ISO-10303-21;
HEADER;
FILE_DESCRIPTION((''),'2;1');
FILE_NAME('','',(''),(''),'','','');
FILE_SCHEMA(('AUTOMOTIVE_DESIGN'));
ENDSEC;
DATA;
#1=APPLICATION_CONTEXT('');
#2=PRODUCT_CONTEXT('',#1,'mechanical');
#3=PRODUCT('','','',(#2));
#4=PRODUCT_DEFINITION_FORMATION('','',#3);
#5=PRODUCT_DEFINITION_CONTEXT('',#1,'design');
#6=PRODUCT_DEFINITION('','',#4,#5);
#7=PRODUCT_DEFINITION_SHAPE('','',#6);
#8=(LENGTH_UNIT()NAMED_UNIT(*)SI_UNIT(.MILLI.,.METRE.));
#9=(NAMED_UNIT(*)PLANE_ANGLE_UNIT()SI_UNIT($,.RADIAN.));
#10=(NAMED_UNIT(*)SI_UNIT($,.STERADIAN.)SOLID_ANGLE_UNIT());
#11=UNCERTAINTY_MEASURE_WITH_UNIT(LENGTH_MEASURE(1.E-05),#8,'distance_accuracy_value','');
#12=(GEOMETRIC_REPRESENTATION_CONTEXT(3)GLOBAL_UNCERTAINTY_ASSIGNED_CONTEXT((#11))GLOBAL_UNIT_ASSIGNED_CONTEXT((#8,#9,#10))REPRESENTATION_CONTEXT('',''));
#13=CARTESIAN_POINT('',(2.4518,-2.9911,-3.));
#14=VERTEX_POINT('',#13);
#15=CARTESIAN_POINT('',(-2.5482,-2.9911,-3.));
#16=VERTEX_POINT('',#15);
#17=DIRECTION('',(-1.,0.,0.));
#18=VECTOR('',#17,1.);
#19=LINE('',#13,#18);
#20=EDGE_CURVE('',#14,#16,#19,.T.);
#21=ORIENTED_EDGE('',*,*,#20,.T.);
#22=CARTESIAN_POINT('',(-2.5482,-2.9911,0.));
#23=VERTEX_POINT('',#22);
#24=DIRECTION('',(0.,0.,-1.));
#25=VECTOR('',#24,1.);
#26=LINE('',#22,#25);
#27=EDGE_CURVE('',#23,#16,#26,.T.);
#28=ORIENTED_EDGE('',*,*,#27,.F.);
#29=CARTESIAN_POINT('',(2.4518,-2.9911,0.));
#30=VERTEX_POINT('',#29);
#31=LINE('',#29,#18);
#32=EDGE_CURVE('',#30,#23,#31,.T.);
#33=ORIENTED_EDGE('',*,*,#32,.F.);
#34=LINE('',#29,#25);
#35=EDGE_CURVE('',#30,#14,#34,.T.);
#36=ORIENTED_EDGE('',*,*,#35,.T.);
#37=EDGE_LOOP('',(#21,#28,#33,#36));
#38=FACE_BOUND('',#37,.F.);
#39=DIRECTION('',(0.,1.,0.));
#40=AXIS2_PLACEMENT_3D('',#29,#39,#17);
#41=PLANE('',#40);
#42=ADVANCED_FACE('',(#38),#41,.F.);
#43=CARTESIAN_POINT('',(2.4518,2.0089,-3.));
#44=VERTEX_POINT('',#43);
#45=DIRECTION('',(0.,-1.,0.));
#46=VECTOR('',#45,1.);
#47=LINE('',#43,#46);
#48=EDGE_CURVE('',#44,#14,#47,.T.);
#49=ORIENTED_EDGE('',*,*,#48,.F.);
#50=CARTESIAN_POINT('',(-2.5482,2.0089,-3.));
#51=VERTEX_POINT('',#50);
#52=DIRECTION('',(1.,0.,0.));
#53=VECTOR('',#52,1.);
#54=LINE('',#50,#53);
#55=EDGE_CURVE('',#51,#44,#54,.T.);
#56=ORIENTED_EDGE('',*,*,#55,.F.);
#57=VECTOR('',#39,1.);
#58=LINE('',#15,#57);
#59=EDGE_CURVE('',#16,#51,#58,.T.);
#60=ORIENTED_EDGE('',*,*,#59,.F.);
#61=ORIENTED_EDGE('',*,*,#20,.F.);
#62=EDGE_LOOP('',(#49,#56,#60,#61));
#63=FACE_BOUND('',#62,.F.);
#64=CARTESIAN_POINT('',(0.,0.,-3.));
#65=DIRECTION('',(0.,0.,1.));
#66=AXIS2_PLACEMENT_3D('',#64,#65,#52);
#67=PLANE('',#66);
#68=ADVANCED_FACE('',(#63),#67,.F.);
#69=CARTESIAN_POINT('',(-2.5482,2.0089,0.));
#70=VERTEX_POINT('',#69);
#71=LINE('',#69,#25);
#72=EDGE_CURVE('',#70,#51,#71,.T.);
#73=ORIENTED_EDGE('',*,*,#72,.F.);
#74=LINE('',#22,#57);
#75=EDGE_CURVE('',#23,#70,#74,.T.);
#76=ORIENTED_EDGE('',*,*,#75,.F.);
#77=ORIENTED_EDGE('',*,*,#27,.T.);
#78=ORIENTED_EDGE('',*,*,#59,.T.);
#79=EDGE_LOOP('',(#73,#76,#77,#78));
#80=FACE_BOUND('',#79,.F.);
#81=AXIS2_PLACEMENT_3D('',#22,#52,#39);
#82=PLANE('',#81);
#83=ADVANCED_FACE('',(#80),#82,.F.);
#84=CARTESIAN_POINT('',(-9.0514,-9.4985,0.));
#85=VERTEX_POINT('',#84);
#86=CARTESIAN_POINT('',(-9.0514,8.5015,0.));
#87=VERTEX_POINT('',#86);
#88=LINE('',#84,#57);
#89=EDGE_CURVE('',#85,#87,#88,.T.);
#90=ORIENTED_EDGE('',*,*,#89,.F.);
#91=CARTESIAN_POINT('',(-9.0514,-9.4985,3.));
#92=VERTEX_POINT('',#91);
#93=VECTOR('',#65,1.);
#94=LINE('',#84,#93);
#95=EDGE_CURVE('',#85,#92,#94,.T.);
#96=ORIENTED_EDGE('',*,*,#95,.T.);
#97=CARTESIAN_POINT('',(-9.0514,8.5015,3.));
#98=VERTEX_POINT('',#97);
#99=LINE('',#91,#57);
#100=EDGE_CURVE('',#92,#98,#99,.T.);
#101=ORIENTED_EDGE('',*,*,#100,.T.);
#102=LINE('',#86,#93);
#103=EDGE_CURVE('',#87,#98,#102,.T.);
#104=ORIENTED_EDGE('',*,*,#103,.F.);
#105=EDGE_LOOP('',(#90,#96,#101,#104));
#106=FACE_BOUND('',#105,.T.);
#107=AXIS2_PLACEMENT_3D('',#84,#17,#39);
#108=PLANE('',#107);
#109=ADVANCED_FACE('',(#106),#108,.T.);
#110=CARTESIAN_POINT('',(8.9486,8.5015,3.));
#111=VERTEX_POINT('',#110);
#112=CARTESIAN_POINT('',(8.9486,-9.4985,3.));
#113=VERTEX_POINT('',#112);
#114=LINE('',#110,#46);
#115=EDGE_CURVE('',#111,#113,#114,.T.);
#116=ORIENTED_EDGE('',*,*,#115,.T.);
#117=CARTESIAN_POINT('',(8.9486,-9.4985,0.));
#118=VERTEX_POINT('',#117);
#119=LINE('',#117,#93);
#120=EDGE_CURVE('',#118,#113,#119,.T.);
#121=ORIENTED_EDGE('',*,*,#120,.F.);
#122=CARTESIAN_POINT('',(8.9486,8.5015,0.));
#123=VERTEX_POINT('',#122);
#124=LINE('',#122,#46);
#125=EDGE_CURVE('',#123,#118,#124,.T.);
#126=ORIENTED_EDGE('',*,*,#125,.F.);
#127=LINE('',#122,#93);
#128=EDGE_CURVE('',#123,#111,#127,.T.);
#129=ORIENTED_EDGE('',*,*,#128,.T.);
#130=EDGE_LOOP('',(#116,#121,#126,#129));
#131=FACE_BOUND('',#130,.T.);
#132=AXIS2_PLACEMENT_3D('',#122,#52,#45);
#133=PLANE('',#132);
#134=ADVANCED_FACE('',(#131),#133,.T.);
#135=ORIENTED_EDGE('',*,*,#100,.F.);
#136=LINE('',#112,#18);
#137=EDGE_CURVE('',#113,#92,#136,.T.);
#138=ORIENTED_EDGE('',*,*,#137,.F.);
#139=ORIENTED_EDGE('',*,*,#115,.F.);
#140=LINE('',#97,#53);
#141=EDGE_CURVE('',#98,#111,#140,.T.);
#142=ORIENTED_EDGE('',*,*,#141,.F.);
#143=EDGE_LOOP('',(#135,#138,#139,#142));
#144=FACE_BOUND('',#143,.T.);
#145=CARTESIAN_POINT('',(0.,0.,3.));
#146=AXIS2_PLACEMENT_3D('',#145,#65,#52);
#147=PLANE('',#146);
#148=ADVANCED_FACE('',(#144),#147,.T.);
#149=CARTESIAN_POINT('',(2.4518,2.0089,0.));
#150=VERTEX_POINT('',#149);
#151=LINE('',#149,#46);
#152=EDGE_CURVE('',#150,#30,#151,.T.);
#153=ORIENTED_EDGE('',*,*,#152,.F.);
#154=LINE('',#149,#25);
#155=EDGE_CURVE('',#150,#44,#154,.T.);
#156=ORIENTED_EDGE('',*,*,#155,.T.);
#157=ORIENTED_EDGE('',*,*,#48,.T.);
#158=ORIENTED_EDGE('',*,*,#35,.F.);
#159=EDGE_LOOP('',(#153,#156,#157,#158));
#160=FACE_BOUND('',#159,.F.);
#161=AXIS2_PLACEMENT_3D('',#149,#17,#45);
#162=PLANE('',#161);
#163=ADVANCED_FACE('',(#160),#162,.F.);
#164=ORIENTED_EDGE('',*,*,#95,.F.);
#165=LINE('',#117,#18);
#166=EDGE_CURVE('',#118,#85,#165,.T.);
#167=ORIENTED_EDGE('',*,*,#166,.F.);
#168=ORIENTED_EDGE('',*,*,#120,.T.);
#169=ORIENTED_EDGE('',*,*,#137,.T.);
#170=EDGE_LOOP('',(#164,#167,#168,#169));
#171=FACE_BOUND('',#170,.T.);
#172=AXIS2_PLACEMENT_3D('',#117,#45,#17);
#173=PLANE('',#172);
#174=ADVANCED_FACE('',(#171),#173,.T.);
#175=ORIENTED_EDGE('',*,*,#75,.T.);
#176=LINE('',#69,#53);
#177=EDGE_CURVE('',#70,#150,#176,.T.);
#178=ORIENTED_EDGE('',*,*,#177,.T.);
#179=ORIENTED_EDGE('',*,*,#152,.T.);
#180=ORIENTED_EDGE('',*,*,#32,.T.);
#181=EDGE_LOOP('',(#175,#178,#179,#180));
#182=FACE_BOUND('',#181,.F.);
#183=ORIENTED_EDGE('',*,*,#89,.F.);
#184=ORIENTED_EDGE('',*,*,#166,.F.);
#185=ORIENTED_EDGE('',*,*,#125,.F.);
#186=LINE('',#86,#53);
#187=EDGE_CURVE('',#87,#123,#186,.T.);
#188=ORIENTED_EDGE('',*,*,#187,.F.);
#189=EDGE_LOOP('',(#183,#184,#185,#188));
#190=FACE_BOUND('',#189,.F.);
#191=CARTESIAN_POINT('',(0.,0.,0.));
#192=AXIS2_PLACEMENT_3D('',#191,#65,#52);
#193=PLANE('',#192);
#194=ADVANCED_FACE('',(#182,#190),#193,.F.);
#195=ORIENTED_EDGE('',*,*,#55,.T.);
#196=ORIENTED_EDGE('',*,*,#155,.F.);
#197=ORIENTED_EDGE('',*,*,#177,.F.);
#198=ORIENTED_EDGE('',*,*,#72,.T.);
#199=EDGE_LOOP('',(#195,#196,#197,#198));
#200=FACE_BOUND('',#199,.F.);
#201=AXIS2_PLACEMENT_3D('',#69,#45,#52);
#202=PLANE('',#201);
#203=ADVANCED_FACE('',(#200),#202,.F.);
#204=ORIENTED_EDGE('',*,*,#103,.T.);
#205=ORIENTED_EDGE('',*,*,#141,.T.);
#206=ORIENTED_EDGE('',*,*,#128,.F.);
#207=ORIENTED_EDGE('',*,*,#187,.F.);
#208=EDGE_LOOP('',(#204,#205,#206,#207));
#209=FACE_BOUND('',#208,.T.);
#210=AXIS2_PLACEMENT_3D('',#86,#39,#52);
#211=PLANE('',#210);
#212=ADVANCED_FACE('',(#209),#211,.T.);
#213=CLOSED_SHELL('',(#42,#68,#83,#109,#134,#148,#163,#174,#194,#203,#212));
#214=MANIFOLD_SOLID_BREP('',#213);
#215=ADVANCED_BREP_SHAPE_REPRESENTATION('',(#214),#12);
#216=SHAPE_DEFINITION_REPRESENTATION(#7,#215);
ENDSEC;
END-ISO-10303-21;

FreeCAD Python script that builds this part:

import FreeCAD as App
import Part
import Sketcher

V = App.Vector
Q = App.Units.Quantity


def add_polygon(sketch, points):
    """Adds a closed chain of lines whose ends are joined by coincident constraints."""
    first, n = sketch.GeometryCount, len(points)
    for a, b in zip(points, points[1:] + points[:1]):
        sketch.addGeometry(Part.LineSegment(App.Vector(*a, 0), App.Vector(*b, 0)), False)
    for i in range(n):
        sketch.addConstraint(Sketcher.Constraint("Coincident", first + i, 2, first + (i + 1) % n, 1))

doc = App.newDocument("Part")
body = doc.addObject("PartDesign::Body", "Body")

sketch1 = doc.addObject("Sketcher::SketchObject", "Sketch")
body.addObject(sketch1)
sketch1.AttachmentSupport = (doc.XY_Plane, [""])
sketch1.MapMode = "FlatFace"
add_polygon(sketch1, [(8.9486, 8.5015), (-9.0514, 8.5015), (-9.0514, -9.4985), (8.9486, -9.4985)])
sketch1.addConstraint(Sketcher.Constraint("Horizontal", 0))
sketch1.addConstraint(Sketcher.Constraint("Vertical", 1))
sketch1.addConstraint(Sketcher.Constraint("Horizontal", 2))
sketch1.addConstraint(Sketcher.Constraint("Vertical", 3))
sketch1.addConstraint(Sketcher.Constraint("Equal", 2, 1))
sketch1.addConstraint(Sketcher.Constraint("DistanceX", 0, 2, 0, 1, Q("18 mm")))
sketch1.addConstraint(Sketcher.Constraint("DistanceX", 0, 2, -1, 1, Q("9.0514 mm")))
sketch1.addConstraint(Sketcher.Constraint("DistanceY", -1, 1, 0, 2, Q("8.5015 mm")))
pad1 = doc.addObject("PartDesign::Pad", "Pad")
body.addObject(pad1)
pad1.Profile = sketch1
pad1.Length = 3

sketch2 = doc.addObject("Sketcher::SketchObject", "Sketch001")
body.addObject(sketch2)
sketch2.AttachmentSupport = (doc.XY_Plane, [""])
sketch2.MapMode = "FlatFace"
add_polygon(sketch2, [(2.4518, 2.0089), (-2.5482, 2.0089), (-2.5482, -2.9911), (2.4518, -2.9911)])
sketch2.addConstraint(Sketcher.Constraint("Horizontal", 0))
sketch2.addConstraint(Sketcher.Constraint("Vertical", 1))
sketch2.addConstraint(Sketcher.Constraint("Horizontal", 2))
sketch2.addConstraint(Sketcher.Constraint("Vertical", 3))
sketch2.addConstraint(Sketcher.Constraint("Equal", 2, 1))
sketch2.addConstraint(Sketcher.Constraint("DistanceX", 0, 2, 0, 1, Q("5 mm")))
sketch2.addConstraint(Sketcher.Constraint("DistanceY", -1, 1, 0, 2, Q("2.009 mm")))
sketch2.addConstraint(Sketcher.Constraint("DistanceX", 0, 2, -1, 1, Q("2.5482 mm")))
pad2 = doc.addObject("PartDesign::Pad", "Pad001")
body.addObject(pad2)
pad2.Profile = sketch2
pad2.Length = 3
pad2.Reversed = True

doc.recompute()
